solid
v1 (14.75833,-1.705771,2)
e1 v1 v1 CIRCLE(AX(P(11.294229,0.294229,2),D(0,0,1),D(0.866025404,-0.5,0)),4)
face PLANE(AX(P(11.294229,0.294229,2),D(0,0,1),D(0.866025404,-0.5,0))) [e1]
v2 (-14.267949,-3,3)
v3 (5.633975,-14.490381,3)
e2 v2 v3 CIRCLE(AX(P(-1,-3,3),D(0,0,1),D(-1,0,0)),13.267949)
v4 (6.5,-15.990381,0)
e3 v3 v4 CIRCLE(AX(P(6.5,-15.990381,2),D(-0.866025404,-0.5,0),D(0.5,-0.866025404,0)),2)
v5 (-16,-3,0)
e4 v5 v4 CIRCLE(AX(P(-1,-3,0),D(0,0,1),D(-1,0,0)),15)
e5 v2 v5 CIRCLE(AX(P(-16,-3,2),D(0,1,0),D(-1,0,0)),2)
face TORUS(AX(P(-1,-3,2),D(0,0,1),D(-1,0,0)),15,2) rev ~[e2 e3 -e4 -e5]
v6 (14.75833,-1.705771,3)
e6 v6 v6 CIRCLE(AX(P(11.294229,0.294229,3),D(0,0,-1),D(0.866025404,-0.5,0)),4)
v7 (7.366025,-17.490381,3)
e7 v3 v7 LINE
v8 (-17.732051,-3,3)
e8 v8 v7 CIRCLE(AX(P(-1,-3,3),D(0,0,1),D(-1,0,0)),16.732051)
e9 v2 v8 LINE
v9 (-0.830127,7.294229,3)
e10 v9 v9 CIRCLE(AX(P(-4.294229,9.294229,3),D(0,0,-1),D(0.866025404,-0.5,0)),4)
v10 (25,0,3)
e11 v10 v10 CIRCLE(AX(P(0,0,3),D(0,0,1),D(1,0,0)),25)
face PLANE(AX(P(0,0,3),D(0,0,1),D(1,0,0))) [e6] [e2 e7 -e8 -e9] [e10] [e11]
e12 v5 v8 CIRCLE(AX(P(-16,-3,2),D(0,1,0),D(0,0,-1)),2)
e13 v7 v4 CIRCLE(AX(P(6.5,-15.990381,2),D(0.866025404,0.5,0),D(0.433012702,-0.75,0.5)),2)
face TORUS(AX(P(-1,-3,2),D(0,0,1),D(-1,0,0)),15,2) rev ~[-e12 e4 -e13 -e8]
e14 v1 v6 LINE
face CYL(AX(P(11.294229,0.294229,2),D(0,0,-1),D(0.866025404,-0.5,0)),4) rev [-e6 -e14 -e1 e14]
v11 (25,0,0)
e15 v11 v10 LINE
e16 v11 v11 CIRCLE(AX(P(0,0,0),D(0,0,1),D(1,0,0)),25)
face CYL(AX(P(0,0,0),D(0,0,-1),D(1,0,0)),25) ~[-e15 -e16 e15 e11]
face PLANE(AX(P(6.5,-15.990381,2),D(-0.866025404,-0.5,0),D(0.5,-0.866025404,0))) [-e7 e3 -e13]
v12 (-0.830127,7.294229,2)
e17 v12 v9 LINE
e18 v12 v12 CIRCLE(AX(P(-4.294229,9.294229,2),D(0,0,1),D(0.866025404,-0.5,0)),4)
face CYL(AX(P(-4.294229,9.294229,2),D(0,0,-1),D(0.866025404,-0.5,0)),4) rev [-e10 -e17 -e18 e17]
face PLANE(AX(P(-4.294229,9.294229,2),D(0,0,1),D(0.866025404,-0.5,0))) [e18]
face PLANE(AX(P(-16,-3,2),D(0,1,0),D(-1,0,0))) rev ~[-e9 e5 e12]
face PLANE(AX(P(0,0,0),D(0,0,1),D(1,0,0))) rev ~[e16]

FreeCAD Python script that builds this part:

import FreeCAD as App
import Part
import Sketcher

V = App.Vector
Q = App.Units.Quantity

doc = App.newDocument("Part")
params = doc.addObject("Spreadsheet::Sheet", "Params")
for row, (alias, value) in enumerate([
    ("sketch1_diameter", "8 mm"),
    ("pad1_length", "2 mm"),
    ("sketch2_diameter", "8 mm"),
    ("pad2_length", "2 mm"),
    ("sketch3_diameter", "4 mm"),
    ("sketch3_height", "10 mm"),
    ("revolution_angle", "120 deg"),
    ("sketch4_diameter", "50 mm"),
    ("pad3_length", "3 mm"),
], start=1):
    params.set(f"A{row}", alias)
    params.set(f"B{row}", "=" + value)
    params.setAlias(f"B{row}", alias)

body = doc.addObject("PartDesign::Body", "Body")

# Sketch on XY plane
sketch1 = body.newObject("Sketcher::SketchObject", "Sketch")
sketch1.AttachmentSupport = (doc.getObject("XY_Plane"), [""])
sketch1.MapMode = "FlatFace"
sketch1.AttachmentOffset = App.Placement(V(0, 0, 2), App.Rotation())
sketch1.addGeometry(Part.Circle(V(9, 9, 0), V(0, 0, 1), 4), False)
sketch1.addConstraint([
    Sketcher.Constraint("Diameter", 0, Q("8 mm")),
    Sketcher.Constraint("DistanceX", -1, 1, 0, 3, Q("9 mm")),
    Sketcher.Constraint("DistanceY", -1, 1, 0, 3, Q("9 mm")),
])
sketch1.setExpression("Constraints[0]", "Params.sketch1_diameter")
pad1 = body.newObject("PartDesign::Pad", "Pad")
pad1.Profile = sketch1
pad1.setExpression("Length", "Params.pad1_length")
body2 = doc.addObject("PartDesign::Body", "Body001")
body2.AllowCompound = True

# Sketch on XY plane
sketch2 = body2.newObject("Sketcher::SketchObject", "Sketch001")
sketch2.AttachmentSupport = (doc.getObject("XY_Plane001"), [""])
sketch2.MapMode = "FlatFace"
sketch2.AttachmentOffset = App.Placement(V(0, 0, 2), App.Rotation())
sketch2.addGeometry(Part.Circle(V(-9, 9, 0), V(0, 0, 1), 4), False)
sketch2.addConstraint([
    Sketcher.Constraint("Diameter", 0, Q("8 mm")),
    Sketcher.Constraint("DistanceX", 0, 3, -1, 1, Q("9 mm")),
    Sketcher.Constraint("DistanceY", -1, 1, 0, 3, Q("9 mm")),
])
sketch2.setExpression("Constraints[0]", "Params.sketch2_diameter")
pad2 = body2.newObject("PartDesign::Pad", "Pad001")
pad2.Profile = sketch2
pad2.setExpression("Length", "Params.pad2_length")
doc.recompute()

boolean = body2.newObject("PartDesign::Boolean", "Boolean")
boolean.Type = "Fuse"
boolean.addObjects([body])
body3 = doc.addObject("PartDesign::Body", "Body002")
body3.AllowCompound = True
doc.recompute()

body2.Placement = App.Placement(V(-1, -3, 0), App.Rotation(V(0, 0, -1), 30))
boolean2 = body3.newObject("PartDesign::Boolean", "Boolean001")
boolean2.Type = "Fuse"
boolean2.addObjects([body2])
body4 = doc.addObject("PartDesign::Body", "Body003")

# Sketch on XZ plane
sketch3 = body4.newObject("Sketcher::SketchObject", "Sketch002")
sketch3.AttachmentSupport = (doc.getObject("XZ_Plane003"), [""])
sketch3.MapMode = "FlatFace"
sketch3.AttachmentOffset = App.Placement(V(0, 0, 3), App.Rotation())
sketch3.addGeometry(Part.Circle(V(-16, 2, 0), V(0, 0, 1), 2), False)
sketch3.addGeometry(Part.LineSegment(V(-1, 2, 0), V(-1, 12, 0)), True)  # axis
sketch3.addConstraint([
    Sketcher.Constraint("Vertical", 1),
    Sketcher.Constraint("Horizontal", 0, 3, 1, 1),
    Sketcher.Constraint("Diameter", 0, Q("4 mm")),
    Sketcher.Constraint("DistanceY", 1, 1, 1, 2, Q("10 mm")),
    Sketcher.Constraint("DistanceX", 0, 3, -1, 1, Q("16 mm")),
    Sketcher.Constraint("DistanceY", -1, 1, 0, 3, Q("2 mm")),
    Sketcher.Constraint("DistanceX", 1, 1, -1, 1, Q("1 mm")),
])
sketch3.setExpression("Constraints[2]", "Params.sketch3_diameter")
sketch3.setExpression("Constraints[3]", "Params.sketch3_height")
revolution = body4.newObject("PartDesign::Revolution", "Revolution")
revolution.Profile = sketch3
revolution.ReferenceAxis = (sketch3, ["Axis0"])
revolution.setExpression("Angle", "Params.revolution_angle")
body5 = doc.addObject("PartDesign::Body", "Body004")

# Sketch on XY plane
sketch4 = body5.newObject("Sketcher::SketchObject", "Sketch003")
sketch4.AttachmentSupport = (doc.getObject("XY_Plane004"), [""])
sketch4.MapMode = "FlatFace"
sketch4.addGeometry(Part.Circle(V(0, 0, 0), V(0, 0, 1), 25), False)
sketch4.addConstraint([
    Sketcher.Constraint("Coincident", 0, 3, -1, 1),
    Sketcher.Constraint("Diameter", 0, Q("50 mm")),
])
sketch4.setExpression("Constraints[1]", "Params.sketch4_diameter")
pad3 = body5.newObject("PartDesign::Pad", "Pad002")
pad3.Profile = sketch4
pad3.setExpression("Length", "Params.pad3_length")
doc.recompute()

boolean3 = body5.newObject("PartDesign::Boolean", "Boolean002")
boolean3.Type = "Cut"
boolean3.addObjects([body4])
doc.recompute()

boolean4 = body5.newObject("PartDesign::Boolean", "Boolean003")
boolean4.Type = "Cut"
boolean4.addObjects([body3])

doc.recompute()
